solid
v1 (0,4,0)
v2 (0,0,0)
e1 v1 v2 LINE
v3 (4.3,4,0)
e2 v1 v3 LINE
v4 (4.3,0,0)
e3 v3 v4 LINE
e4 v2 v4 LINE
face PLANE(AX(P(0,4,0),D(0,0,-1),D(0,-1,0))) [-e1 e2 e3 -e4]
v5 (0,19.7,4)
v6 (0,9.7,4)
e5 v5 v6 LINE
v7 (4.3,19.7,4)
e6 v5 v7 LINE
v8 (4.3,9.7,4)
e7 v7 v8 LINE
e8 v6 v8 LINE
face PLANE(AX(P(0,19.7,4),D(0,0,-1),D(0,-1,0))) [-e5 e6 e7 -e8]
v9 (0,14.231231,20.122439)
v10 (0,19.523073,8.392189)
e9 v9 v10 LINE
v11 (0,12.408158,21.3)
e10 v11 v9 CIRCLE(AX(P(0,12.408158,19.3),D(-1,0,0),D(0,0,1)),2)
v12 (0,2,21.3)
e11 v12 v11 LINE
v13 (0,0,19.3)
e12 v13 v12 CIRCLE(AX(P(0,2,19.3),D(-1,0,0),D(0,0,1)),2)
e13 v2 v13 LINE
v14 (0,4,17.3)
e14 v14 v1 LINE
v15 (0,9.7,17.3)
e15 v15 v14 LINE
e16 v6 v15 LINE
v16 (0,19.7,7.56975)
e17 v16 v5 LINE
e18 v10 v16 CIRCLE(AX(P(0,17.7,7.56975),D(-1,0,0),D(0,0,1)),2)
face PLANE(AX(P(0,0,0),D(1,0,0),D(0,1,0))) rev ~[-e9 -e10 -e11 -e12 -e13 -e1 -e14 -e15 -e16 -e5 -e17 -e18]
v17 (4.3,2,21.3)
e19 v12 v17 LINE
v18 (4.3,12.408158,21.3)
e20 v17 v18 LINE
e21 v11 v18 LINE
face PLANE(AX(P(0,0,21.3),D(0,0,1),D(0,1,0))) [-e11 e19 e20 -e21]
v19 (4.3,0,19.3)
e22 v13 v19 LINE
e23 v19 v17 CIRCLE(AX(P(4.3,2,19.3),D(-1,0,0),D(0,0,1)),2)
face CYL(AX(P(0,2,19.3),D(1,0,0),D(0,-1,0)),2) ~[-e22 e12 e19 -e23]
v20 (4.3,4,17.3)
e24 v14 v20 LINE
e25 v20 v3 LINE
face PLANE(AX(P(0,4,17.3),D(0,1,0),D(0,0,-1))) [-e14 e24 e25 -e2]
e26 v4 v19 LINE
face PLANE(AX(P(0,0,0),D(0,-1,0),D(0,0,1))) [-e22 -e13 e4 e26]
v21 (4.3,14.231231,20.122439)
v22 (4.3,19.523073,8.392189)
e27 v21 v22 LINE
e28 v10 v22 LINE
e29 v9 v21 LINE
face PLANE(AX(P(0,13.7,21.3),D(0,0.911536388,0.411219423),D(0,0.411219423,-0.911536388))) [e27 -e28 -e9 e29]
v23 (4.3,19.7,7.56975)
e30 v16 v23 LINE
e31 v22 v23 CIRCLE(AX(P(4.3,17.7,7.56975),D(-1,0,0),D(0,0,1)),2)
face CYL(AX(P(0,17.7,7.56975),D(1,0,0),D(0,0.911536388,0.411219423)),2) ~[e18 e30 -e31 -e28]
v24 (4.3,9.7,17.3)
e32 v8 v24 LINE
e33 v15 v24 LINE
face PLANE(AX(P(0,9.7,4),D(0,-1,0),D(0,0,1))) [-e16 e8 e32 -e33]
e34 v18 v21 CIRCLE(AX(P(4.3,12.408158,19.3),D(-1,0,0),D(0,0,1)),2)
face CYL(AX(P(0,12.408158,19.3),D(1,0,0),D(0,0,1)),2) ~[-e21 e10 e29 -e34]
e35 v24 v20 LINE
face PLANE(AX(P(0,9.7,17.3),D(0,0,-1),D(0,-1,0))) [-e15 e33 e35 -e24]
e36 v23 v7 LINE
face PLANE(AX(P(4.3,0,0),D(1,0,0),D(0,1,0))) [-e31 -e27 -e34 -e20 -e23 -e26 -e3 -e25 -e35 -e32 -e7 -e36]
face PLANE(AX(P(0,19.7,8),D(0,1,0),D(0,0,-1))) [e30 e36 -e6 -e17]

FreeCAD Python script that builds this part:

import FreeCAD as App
import Part
import Sketcher
Q = App.Units.Quantity


def edges_at(feature, points):
    """Names of the edges that pass closest to the given points."""
    edges = feature.Shape.Edges
    near = lambda p: min(range(len(edges)), key=lambda i: edges[i].distToShape(Part.Vertex(*p))[0])
    return sorted({f"Edge{near(p) + 1}" for p in points})

doc = App.newDocument("Part")
body = doc.addObject("PartDesign::Body", "Body")

# Sketch on YZ plane
sketch1 = doc.addObject("Sketcher::SketchObject", "Sketch")
body.addObject(sketch1)
sketch1.AttachmentSupport = (doc.YZ_Plane, [""])
sketch1.MapMode = "FlatFace"
sketch1.addGeometry([
    Part.LineSegment(App.Vector(0, 21.3, 0), App.Vector(0, 0, 0)),  # 0
    Part.LineSegment(App.Vector(0, 0, 0), App.Vector(4, 0, 0)),  # 1
    Part.LineSegment(App.Vector(4, 0, 0), App.Vector(4, 17.3, 0)),  # 2
    Part.LineSegment(App.Vector(4, 17.3, 0), App.Vector(9.7, 17.3, 0)),  # 3
    Part.LineSegment(App.Vector(9.7, 17.3, 0), App.Vector(9.7, 4, 0)),  # 4
    Part.LineSegment(App.Vector(9.7, 4, 0), App.Vector(19.7, 4, 0)),  # 5
    Part.LineSegment(App.Vector(19.7, 4, 0), App.Vector(19.7, 8, 0)),  # 6
    Part.LineSegment(App.Vector(19.7, 8, 0), App.Vector(13.7, 21.3, 0)),  # 7
    Part.LineSegment(App.Vector(13.7, 21.3, 0), App.Vector(0, 21.3, 0)),  # 8
], False)
sketch1.addConstraint([
    Sketcher.Constraint("Coincident", 0, 2, 1, 1),
    Sketcher.Constraint("Coincident", 1, 2, 2, 1),
    Sketcher.Constraint("Coincident", 2, 2, 3, 1),
    Sketcher.Constraint("Coincident", 3, 2, 4, 1),
    Sketcher.Constraint("Coincident", 4, 2, 5, 1),
    Sketcher.Constraint("Coincident", 5, 2, 6, 1),
    Sketcher.Constraint("Coincident", 6, 2, 7, 1),
    Sketcher.Constraint("Coincident", 7, 2, 8, 1),
    Sketcher.Constraint("Coincident", 8, 2, 0, 1),
    Sketcher.Constraint("Vertical", 0),
    Sketcher.Constraint("Horizontal", 1),
    Sketcher.Constraint("Vertical", 2),
    Sketcher.Constraint("Horizontal", 3),
    Sketcher.Constraint("Vertical", 4),
    Sketcher.Constraint("Horizontal", 5),
    Sketcher.Constraint("Vertical", 6),
    Sketcher.Constraint("Horizontal", 8),
    Sketcher.Constraint("Coincident", 0, 2, -1, 1),
    Sketcher.Constraint("Equal", 1, 6),
    Sketcher.Constraint("DistanceX", 1, 1, 1, 2, Q("4 mm")),
    Sketcher.Constraint("DistanceX", 5, 1, 5, 2, Q("10 mm")),
    Sketcher.Constraint("DistanceX", 3, 1, 3, 2, Q("5.7 mm")),
    Sketcher.Constraint("DistanceY", 4, 2, 4, 1, Q("13.3 mm")),
    Sketcher.Constraint("DistanceY", -1, 1, 4, 2, Q("4 mm")),
    Sketcher.Constraint("DistanceX", 3, 2, 7, 2, Q("4 mm")),
    Sketcher.Constraint("DistanceY", 3, 2, 7, 2, Q("4 mm")),
])
pad1 = doc.addObject("PartDesign::Pad", "Pad")
body.addObject(pad1)
pad1.Profile = sketch1
pad1.Length = 4.3
doc.recompute()

fillet = doc.addObject("PartDesign::Fillet", "Fillet")
body.addObject(fillet)
fillet.Base = (pad1, edges_at(pad1, [(2.15, 0, 21.3), (2.15, 13.7, 21.3), (2.15, 19.7, 8)]))
fillet.Radius = 2

doc.recompute()
